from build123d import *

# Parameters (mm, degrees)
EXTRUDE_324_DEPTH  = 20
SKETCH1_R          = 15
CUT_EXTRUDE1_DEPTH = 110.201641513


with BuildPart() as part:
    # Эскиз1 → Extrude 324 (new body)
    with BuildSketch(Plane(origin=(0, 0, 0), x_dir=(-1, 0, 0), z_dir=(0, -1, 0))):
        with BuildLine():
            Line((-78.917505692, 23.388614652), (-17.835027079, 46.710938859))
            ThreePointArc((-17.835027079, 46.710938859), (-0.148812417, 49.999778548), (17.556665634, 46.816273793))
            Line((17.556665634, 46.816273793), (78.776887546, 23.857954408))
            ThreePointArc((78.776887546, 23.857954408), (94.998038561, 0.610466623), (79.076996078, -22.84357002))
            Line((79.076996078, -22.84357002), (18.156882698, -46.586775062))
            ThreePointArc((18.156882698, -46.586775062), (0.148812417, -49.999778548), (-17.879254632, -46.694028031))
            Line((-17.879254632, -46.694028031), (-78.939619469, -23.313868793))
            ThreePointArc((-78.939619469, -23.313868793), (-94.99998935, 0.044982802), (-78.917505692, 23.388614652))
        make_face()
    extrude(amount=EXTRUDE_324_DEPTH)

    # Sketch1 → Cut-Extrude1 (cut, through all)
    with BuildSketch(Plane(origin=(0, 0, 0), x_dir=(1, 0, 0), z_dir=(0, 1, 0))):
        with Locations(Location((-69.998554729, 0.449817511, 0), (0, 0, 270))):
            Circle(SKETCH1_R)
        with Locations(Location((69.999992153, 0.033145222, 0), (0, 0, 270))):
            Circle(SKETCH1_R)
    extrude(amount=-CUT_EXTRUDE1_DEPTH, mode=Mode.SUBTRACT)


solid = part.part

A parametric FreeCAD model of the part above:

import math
import FreeCAD as App
import Part
import Sketcher

doc = App.newDocument("Part")
params = doc.addObject("Spreadsheet::Sheet", "Params")
for row, (alias, value) in enumerate([
    ("sketch1_radius", "25 mm"),
    ("sketch1_radius2", "50 mm"),
    ("pad1_length", "20 mm"),
    ("sketch2_diameter", "30 mm"),
], start=1):
    params.set(f"A{row}", alias)
    params.set(f"B{row}", "=" + value)
    params.setAlias(f"B{row}", alias)

body = doc.addObject("PartDesign::Body", "Body")

sketch1 = body.newObject("Sketcher::SketchObject", "Sketch")
sketch1.AttachmentSupport = (doc.getObject("XZ_Plane"), [""])
sketch1.MapMode = "FlatFace"
sketch1.addGeometry([
    Part.LineSegment(App.Vector(17.835027, -46.710939, 0), App.Vector(78.917506, -23.388615, 0)),
    Part.ArcOfCircle(Part.Circle(App.Vector(69.999992, -0.033145, 0), App.Vector(0, 0, 1), 25), math.radians(-69.102297), math.radians(69.048038)),
    Part.LineSegment(App.Vector(78.939619, 23.313869, 0), App.Vector(17.879255, 46.694028, 0)),
    Part.ArcOfCircle(Part.Circle(App.Vector(0, 0, 0), App.Vector(0, 0, 1), 50), math.radians(69.048038), math.radians(111.293016)),
    Part.LineSegment(App.Vector(-18.156883, 46.586775, 0), App.Vector(-79.076996, 22.84357, 0)),
    Part.ArcOfCircle(Part.Circle(App.Vector(-69.998555, -0.449818, 0), App.Vector(0, 0, 1), 25), math.radians(111.293016), math.radians(249.443351)),
    Part.LineSegment(App.Vector(-78.776888, -23.857954, 0), App.Vector(-17.556666, -46.816274, 0)),
    Part.ArcOfCircle(Part.Circle(App.Vector(0, 0, 0), App.Vector(0, 0, 1), 50), math.radians(-110.556649), math.radians(-69.102297)),
], False)
sketch1.addConstraint([
    Sketcher.Constraint("Tangent", 0, 2, 1, 1),
    Sketcher.Constraint("Tangent", 1, 2, 2, 1),
    Sketcher.Constraint("Tangent", 2, 2, 3, 1),
    Sketcher.Constraint("Tangent", 3, 2, 4, 1),
    Sketcher.Constraint("Tangent", 4, 2, 5, 1),
    Sketcher.Constraint("Tangent", 5, 2, 6, 1),
    Sketcher.Constraint("Tangent", 6, 2, 7, 1),
    Sketcher.Constraint("Tangent", 7, 2, 0, 1),
    Sketcher.Constraint("Coincident", 3, 3, -1, 1),
    Sketcher.Constraint("Coincident", 7, 3, -1, 1),
    Sketcher.Constraint("Equal", 1, 5),
    Sketcher.Constraint("Equal", 3, 7),
    Sketcher.Constraint("Equal", 2, 4),
    Sketcher.Constraint("Radius", 1, 25.0),
    Sketcher.Constraint("Radius", 3, 50.0),
    Sketcher.Constraint("DistanceX", -1, 1, 1, 2, 78.939619),
    Sketcher.Constraint("DistanceY", -1, 1, 1, 2, 23.313869),
    Sketcher.Constraint("DistanceY", -1, 1, 4, 2, 22.84357),
])
sketch1.setExpression("Constraints[13]", "Params.sketch1_radius")
sketch1.setExpression("Constraints[14]", "Params.sketch1_radius2")
pad1 = body.newObject("PartDesign::Pad", "Pad")
pad1.Profile = sketch1
pad1.setExpression("Length", "Params.pad1_length")

sketch2 = body.newObject("Sketcher::SketchObject", "Sketch001")
sketch2.AttachmentSupport = (doc.getObject("XZ_Plane"), [""])
sketch2.MapMode = "FlatFace"
sketch2.addGeometry([
    Part.Circle(App.Vector(-69.998555, -0.449818, 0), App.Vector(0, 0, 1), 15),
    Part.Circle(App.Vector(69.999992, -0.033145, 0), App.Vector(0, 0, 1), 15),
], False)
sketch2.addConstraint([
    Sketcher.Constraint("Equal", 0, 1),
    Sketcher.Constraint("Diameter", 0, 30.0),
    Sketcher.Constraint("DistanceX", 0, 3, -1, 1, 69.998555),
    Sketcher.Constraint("DistanceY", 0, 3, -1, 1, 0.449818),
    Sketcher.Constraint("DistanceX", -1, 1, 1, 3, 69.999992),
    Sketcher.Constraint("DistanceY", 1, 3, -1, 1, 0.033145),
])
sketch2.setExpression("Constraints[1]", "Params.sketch2_diameter")
pocket1 = body.newObject("PartDesign::Pocket", "Pocket")
pocket1.Profile = sketch2
pocket1.Type = "ThroughAll"
pocket1.Reversed = True

doc.recompute()
